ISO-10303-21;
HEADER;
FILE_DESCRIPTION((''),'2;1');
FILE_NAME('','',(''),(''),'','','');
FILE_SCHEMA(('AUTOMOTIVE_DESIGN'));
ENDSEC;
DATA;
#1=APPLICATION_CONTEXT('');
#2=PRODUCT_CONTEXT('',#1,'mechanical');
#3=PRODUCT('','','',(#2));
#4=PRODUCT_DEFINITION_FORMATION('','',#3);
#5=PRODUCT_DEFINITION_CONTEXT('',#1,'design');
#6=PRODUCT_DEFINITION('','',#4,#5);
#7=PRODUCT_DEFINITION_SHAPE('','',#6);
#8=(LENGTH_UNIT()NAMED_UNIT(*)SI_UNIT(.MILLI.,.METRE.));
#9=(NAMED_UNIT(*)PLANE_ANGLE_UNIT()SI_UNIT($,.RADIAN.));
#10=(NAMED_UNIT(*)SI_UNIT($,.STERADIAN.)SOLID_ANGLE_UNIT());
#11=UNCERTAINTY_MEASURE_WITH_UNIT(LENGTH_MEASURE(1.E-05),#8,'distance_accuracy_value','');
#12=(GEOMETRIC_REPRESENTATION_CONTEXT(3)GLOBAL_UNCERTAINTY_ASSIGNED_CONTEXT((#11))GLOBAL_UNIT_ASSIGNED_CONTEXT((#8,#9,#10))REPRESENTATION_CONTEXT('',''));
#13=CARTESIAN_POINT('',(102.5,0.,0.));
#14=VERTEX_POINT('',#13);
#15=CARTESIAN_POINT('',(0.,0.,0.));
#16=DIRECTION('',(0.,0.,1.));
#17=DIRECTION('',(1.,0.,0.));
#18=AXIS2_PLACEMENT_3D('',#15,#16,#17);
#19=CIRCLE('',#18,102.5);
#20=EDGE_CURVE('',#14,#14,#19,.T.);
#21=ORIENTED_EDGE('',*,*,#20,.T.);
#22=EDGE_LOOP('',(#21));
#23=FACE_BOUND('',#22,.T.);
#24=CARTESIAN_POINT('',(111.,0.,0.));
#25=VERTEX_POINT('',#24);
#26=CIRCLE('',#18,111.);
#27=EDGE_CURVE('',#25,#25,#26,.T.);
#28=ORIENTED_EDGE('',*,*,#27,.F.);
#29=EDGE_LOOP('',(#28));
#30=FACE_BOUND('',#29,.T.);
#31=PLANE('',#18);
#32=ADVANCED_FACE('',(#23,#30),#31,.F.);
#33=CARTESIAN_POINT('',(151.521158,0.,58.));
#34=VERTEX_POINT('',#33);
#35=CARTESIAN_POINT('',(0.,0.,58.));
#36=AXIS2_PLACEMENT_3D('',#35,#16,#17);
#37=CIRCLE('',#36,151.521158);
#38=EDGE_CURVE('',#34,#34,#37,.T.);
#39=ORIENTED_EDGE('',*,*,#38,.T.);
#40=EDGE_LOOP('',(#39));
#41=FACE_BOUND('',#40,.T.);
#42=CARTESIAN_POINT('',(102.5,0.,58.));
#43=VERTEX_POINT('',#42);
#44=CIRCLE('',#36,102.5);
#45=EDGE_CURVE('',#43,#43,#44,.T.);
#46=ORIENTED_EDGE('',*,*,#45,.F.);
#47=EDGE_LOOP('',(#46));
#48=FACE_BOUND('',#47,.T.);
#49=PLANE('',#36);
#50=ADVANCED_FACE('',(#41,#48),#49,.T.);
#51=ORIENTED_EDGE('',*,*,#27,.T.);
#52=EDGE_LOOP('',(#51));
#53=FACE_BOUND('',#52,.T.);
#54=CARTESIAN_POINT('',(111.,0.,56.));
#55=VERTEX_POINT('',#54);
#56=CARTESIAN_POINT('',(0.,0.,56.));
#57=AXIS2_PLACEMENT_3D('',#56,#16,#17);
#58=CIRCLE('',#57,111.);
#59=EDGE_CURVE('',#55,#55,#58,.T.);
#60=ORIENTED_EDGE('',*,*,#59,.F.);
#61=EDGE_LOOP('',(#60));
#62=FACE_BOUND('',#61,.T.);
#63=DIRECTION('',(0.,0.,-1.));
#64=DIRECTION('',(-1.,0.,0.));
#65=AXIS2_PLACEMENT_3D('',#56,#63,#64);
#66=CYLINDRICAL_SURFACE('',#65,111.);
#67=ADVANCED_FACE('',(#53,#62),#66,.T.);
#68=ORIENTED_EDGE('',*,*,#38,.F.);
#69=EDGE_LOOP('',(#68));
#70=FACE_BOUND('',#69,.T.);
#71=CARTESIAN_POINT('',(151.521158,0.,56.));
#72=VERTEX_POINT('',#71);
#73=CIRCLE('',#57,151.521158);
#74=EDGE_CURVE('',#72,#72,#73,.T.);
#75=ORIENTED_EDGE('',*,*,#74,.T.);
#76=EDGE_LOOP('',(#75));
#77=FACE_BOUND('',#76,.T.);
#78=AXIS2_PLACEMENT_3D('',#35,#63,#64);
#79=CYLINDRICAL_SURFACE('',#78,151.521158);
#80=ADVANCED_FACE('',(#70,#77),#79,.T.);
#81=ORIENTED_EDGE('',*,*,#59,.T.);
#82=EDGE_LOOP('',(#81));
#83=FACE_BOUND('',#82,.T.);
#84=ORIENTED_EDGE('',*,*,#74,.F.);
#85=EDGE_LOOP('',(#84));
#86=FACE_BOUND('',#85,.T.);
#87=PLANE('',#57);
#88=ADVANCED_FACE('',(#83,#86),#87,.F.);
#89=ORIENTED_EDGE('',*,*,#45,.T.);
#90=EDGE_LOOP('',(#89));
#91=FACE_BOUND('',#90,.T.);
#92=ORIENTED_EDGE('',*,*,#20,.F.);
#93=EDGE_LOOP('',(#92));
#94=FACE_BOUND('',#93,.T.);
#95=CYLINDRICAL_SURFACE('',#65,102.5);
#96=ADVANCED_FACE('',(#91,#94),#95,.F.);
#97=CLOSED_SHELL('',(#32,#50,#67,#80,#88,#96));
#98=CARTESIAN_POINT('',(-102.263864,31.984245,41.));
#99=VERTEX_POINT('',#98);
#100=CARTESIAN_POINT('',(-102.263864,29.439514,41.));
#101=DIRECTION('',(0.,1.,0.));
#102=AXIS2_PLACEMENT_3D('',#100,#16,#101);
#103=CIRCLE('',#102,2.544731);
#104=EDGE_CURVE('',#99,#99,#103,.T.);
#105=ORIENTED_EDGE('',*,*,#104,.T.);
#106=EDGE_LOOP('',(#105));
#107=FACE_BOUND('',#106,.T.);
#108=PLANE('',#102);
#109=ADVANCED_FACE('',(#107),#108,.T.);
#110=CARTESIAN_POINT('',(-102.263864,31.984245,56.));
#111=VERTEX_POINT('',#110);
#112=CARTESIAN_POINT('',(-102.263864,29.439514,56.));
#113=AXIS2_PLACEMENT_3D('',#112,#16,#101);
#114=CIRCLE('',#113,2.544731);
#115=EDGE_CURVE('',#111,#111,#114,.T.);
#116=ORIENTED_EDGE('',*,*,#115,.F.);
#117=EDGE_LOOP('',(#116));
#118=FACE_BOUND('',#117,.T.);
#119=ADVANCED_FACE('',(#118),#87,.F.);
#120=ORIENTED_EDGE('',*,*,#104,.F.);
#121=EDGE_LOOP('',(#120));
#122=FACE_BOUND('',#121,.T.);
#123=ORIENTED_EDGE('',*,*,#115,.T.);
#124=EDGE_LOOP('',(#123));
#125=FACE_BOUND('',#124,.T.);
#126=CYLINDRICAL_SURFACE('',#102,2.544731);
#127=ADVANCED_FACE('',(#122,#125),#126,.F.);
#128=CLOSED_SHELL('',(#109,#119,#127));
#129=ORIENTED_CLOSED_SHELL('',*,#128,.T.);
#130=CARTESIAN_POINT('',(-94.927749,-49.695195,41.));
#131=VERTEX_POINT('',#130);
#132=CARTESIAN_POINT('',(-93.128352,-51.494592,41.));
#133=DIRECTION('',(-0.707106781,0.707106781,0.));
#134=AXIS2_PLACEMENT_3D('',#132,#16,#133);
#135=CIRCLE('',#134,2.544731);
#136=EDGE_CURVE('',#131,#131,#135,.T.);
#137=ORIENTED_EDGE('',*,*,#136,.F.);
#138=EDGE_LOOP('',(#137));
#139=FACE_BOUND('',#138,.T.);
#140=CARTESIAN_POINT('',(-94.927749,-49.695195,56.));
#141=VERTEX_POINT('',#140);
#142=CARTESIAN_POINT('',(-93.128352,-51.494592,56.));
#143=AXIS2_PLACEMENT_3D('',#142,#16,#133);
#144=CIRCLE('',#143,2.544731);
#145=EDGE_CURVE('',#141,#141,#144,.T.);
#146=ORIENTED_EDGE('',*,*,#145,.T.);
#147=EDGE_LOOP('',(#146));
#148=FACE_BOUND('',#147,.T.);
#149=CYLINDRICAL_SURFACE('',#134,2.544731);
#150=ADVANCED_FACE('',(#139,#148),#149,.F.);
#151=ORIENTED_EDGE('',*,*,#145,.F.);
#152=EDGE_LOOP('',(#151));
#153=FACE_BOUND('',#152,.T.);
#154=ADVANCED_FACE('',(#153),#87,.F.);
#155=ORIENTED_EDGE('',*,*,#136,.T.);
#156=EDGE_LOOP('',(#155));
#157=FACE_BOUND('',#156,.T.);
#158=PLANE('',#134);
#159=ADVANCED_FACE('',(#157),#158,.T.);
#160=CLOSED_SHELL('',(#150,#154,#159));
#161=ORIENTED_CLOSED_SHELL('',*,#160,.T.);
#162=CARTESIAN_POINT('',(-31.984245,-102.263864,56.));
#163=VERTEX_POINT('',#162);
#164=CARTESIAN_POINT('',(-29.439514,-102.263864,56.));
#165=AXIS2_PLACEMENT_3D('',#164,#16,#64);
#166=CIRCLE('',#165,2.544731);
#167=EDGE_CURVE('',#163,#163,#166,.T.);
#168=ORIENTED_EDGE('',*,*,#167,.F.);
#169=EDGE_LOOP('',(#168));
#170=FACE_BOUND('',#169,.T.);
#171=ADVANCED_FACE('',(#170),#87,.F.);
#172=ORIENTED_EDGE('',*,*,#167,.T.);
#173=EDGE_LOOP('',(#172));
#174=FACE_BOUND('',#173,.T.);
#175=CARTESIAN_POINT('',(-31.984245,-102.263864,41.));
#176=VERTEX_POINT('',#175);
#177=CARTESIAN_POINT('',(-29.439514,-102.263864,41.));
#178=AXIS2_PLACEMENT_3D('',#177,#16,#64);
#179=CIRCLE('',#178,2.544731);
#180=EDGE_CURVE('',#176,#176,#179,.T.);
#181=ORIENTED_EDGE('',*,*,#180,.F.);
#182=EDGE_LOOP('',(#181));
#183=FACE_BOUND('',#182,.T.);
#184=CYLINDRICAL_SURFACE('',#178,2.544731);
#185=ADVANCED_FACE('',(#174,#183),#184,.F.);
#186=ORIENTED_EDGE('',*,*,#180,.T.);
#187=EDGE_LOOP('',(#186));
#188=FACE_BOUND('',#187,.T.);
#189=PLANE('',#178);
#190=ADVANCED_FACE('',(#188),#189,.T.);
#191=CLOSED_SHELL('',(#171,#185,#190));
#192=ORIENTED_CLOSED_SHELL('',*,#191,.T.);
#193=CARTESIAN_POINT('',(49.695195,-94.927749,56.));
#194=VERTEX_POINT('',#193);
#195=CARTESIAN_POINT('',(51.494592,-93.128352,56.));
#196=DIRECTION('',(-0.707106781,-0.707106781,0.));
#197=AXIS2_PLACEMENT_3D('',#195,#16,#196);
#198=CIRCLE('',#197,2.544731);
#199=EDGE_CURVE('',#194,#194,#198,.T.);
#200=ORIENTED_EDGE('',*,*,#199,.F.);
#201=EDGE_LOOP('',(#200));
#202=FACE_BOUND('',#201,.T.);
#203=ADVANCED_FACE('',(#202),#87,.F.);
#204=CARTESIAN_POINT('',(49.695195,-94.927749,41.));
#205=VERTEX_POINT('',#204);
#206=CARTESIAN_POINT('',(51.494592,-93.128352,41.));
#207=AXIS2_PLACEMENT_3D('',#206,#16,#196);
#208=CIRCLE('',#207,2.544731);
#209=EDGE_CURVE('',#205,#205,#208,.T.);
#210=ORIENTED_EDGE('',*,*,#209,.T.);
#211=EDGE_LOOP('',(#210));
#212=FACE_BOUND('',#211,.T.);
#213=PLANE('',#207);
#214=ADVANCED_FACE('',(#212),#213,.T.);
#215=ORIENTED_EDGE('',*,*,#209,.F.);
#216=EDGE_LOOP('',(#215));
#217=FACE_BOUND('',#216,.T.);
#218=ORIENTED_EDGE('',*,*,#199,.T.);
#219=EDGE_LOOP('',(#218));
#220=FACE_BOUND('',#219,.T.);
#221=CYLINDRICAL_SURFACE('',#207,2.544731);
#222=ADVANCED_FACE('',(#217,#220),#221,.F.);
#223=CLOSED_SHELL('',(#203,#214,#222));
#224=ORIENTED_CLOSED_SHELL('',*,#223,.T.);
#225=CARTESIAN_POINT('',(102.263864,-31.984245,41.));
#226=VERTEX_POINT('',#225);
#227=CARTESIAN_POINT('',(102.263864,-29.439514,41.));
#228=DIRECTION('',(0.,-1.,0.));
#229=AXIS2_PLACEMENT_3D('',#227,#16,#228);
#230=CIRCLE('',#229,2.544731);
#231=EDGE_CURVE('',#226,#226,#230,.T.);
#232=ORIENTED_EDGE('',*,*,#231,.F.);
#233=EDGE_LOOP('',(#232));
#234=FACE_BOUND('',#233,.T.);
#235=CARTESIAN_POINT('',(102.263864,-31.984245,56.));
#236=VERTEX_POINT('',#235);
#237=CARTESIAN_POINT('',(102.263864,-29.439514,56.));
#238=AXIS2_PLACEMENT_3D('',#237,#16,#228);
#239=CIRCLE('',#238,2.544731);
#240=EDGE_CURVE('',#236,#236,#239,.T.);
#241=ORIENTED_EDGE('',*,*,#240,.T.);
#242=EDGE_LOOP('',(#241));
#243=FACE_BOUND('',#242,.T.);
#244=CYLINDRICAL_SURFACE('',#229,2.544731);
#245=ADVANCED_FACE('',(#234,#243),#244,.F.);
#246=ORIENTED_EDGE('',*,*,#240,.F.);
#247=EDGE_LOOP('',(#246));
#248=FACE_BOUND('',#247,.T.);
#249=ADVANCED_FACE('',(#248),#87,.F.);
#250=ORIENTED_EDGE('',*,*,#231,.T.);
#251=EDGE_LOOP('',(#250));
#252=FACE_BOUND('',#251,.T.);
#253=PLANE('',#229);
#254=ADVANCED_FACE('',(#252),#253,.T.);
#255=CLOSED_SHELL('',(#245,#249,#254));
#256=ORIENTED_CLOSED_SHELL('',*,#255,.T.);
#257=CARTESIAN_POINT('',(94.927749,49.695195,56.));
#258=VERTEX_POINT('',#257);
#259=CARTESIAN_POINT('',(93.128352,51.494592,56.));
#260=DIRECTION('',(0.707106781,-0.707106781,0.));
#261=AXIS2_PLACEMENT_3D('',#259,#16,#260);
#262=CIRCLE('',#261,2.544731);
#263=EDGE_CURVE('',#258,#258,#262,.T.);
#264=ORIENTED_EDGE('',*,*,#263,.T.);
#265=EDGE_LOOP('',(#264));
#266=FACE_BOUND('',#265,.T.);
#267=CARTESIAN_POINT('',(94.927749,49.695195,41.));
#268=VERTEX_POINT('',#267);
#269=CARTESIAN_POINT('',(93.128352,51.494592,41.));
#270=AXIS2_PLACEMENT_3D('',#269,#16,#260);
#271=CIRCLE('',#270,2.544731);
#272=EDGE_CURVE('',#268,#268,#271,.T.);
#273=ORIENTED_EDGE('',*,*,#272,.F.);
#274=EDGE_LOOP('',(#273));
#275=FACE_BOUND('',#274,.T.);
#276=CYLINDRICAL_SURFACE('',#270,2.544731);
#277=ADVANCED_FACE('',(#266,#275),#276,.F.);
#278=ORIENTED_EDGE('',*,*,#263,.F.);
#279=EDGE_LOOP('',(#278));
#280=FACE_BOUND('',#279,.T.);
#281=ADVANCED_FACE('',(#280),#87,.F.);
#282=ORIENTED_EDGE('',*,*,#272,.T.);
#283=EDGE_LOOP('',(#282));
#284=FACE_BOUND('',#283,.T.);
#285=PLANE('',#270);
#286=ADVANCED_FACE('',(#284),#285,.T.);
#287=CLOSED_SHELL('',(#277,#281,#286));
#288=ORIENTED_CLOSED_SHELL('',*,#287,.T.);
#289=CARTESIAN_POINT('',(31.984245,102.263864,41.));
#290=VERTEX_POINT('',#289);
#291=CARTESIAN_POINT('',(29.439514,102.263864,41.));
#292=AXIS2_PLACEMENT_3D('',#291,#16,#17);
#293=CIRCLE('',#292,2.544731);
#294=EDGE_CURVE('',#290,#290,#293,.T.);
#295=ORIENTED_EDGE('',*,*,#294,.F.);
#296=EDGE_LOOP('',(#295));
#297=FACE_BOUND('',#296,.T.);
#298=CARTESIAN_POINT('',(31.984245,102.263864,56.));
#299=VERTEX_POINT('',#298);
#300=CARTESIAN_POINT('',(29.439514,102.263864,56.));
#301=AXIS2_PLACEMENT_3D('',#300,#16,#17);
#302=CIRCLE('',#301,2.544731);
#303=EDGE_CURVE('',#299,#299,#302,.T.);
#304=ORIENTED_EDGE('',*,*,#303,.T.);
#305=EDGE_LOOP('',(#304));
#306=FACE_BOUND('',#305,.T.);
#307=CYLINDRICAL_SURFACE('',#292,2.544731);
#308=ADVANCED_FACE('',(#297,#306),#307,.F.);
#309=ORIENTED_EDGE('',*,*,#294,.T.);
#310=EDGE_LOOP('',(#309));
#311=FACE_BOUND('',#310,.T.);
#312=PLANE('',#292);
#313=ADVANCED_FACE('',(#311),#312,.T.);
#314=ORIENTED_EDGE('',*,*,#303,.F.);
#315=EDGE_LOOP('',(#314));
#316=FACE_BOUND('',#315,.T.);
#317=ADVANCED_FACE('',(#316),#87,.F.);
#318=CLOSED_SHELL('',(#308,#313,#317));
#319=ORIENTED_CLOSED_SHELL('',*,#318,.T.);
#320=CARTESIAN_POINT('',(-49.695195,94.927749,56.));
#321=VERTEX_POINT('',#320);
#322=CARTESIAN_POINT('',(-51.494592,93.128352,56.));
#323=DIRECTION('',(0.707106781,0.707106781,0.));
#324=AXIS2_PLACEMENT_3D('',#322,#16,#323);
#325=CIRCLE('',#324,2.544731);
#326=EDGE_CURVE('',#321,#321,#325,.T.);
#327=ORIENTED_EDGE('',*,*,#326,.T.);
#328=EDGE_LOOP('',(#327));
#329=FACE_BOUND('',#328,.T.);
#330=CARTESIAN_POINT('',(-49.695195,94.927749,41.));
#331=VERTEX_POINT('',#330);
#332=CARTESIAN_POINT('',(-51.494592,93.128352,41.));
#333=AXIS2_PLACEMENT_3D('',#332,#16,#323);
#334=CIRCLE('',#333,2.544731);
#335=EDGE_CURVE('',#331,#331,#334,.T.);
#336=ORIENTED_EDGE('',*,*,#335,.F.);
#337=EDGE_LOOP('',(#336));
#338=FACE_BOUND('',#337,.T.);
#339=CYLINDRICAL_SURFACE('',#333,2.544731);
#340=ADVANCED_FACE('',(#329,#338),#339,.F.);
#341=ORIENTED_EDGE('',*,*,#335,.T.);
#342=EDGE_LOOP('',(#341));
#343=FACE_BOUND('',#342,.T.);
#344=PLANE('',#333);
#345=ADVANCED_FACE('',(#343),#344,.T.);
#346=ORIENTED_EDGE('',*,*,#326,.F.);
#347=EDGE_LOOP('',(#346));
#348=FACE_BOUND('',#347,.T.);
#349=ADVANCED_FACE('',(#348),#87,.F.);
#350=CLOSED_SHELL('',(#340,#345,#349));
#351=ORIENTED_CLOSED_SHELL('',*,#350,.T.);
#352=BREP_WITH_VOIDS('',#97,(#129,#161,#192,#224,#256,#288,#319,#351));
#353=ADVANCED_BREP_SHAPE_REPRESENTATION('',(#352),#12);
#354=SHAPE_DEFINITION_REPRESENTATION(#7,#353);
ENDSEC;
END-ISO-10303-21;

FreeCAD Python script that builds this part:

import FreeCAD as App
import Part
import Sketcher

V = App.Vector
Q = App.Units.Quantity

doc = App.newDocument("Part")
body = doc.addObject("PartDesign::Body", "Body")

sketch1 = body.newObject("Sketcher::SketchObject", "Sketch")
sketch1.AttachmentSupport = (doc.getObject("XY_Plane"), [""])
sketch1.MapMode = "FlatFace"
sketch1.addGeometry([
    Part.Circle(V(0, 0, 0), V(0, 0, 1), 111),
    Part.Circle(V(0, 0, 0), V(0, 0, 1), 102),
], False)
sketch1.addConstraint([
    Sketcher.Constraint("Coincident", 0, 3, -1, 1),
    Sketcher.Constraint("Coincident", 1, 3, -1, 1),
    Sketcher.Constraint("Diameter", 0, Q("222 mm")),
    Sketcher.Constraint("Diameter", 1, Q("205 mm")),
])
pad1 = body.newObject("PartDesign::Pad", "Pad")
pad1.Profile = sketch1
pad1.Length = 56

sketch2 = body.newObject("Sketcher::SketchObject", "Sketch001")
sketch2.AttachmentSupport = (doc.getObject("XY_Plane"), [""])
sketch2.MapMode = "FlatFace"
sketch2.AttachmentOffset = App.Placement(V(0, 0, 56), App.Rotation())
sketch2.addGeometry(Part.Circle(V(29.4, 102.3, 0), V(0, 0, 1), 2.5), False)
sketch2.addConstraint([
    Sketcher.Constraint("Diameter", 0, Q("5.089463 mm")),
    Sketcher.Constraint("DistanceX", -1, 1, 0, 3, Q("29.439514 mm")),
    Sketcher.Constraint("DistanceY", -1, 1, 0, 3, Q("102.263864 mm")),
])
pocket1 = body.newObject("PartDesign::Pocket", "Pocket")
pocket1.Profile = sketch2
pocket1.Length = 15
doc.recompute()

polarpattern = body.newObject("PartDesign::PolarPattern", "PolarPattern")
polarpattern.Originals = [pocket1]
polarpattern.Axis = (doc.getObject("Z_Axis"), [""])
polarpattern.Angle = 360
polarpattern.Occurrences = 8
body.Tip = polarpattern

sketch3 = body.newObject("Sketcher::SketchObject", "Sketch002")
sketch3.AttachmentSupport = (doc.getObject("XY_Plane"), [""])
sketch3.MapMode = "FlatFace"
sketch3.AttachmentOffset = App.Placement(V(0, 0, 56), App.Rotation())
sketch3.addGeometry([
    Part.Circle(V(0, 0, 0), V(0, 0, 1), 152),
    Part.Circle(V(0, 0, 0), V(0, 0, 1), 102),
], False)
sketch3.addConstraint([
    Sketcher.Constraint("Coincident", 0, 3, -1, 1),
    Sketcher.Constraint("Coincident", 1, 3, -1, 1),
    Sketcher.Constraint("Diameter", 1, Q("205 mm")),
    Sketcher.Constraint("Diameter", 0, Q("303.042317 mm")),
])
pad2 = body.newObject("PartDesign::Pad", "Pad001")
pad2.Profile = sketch3
pad2.Length = 2

doc.recompute()
